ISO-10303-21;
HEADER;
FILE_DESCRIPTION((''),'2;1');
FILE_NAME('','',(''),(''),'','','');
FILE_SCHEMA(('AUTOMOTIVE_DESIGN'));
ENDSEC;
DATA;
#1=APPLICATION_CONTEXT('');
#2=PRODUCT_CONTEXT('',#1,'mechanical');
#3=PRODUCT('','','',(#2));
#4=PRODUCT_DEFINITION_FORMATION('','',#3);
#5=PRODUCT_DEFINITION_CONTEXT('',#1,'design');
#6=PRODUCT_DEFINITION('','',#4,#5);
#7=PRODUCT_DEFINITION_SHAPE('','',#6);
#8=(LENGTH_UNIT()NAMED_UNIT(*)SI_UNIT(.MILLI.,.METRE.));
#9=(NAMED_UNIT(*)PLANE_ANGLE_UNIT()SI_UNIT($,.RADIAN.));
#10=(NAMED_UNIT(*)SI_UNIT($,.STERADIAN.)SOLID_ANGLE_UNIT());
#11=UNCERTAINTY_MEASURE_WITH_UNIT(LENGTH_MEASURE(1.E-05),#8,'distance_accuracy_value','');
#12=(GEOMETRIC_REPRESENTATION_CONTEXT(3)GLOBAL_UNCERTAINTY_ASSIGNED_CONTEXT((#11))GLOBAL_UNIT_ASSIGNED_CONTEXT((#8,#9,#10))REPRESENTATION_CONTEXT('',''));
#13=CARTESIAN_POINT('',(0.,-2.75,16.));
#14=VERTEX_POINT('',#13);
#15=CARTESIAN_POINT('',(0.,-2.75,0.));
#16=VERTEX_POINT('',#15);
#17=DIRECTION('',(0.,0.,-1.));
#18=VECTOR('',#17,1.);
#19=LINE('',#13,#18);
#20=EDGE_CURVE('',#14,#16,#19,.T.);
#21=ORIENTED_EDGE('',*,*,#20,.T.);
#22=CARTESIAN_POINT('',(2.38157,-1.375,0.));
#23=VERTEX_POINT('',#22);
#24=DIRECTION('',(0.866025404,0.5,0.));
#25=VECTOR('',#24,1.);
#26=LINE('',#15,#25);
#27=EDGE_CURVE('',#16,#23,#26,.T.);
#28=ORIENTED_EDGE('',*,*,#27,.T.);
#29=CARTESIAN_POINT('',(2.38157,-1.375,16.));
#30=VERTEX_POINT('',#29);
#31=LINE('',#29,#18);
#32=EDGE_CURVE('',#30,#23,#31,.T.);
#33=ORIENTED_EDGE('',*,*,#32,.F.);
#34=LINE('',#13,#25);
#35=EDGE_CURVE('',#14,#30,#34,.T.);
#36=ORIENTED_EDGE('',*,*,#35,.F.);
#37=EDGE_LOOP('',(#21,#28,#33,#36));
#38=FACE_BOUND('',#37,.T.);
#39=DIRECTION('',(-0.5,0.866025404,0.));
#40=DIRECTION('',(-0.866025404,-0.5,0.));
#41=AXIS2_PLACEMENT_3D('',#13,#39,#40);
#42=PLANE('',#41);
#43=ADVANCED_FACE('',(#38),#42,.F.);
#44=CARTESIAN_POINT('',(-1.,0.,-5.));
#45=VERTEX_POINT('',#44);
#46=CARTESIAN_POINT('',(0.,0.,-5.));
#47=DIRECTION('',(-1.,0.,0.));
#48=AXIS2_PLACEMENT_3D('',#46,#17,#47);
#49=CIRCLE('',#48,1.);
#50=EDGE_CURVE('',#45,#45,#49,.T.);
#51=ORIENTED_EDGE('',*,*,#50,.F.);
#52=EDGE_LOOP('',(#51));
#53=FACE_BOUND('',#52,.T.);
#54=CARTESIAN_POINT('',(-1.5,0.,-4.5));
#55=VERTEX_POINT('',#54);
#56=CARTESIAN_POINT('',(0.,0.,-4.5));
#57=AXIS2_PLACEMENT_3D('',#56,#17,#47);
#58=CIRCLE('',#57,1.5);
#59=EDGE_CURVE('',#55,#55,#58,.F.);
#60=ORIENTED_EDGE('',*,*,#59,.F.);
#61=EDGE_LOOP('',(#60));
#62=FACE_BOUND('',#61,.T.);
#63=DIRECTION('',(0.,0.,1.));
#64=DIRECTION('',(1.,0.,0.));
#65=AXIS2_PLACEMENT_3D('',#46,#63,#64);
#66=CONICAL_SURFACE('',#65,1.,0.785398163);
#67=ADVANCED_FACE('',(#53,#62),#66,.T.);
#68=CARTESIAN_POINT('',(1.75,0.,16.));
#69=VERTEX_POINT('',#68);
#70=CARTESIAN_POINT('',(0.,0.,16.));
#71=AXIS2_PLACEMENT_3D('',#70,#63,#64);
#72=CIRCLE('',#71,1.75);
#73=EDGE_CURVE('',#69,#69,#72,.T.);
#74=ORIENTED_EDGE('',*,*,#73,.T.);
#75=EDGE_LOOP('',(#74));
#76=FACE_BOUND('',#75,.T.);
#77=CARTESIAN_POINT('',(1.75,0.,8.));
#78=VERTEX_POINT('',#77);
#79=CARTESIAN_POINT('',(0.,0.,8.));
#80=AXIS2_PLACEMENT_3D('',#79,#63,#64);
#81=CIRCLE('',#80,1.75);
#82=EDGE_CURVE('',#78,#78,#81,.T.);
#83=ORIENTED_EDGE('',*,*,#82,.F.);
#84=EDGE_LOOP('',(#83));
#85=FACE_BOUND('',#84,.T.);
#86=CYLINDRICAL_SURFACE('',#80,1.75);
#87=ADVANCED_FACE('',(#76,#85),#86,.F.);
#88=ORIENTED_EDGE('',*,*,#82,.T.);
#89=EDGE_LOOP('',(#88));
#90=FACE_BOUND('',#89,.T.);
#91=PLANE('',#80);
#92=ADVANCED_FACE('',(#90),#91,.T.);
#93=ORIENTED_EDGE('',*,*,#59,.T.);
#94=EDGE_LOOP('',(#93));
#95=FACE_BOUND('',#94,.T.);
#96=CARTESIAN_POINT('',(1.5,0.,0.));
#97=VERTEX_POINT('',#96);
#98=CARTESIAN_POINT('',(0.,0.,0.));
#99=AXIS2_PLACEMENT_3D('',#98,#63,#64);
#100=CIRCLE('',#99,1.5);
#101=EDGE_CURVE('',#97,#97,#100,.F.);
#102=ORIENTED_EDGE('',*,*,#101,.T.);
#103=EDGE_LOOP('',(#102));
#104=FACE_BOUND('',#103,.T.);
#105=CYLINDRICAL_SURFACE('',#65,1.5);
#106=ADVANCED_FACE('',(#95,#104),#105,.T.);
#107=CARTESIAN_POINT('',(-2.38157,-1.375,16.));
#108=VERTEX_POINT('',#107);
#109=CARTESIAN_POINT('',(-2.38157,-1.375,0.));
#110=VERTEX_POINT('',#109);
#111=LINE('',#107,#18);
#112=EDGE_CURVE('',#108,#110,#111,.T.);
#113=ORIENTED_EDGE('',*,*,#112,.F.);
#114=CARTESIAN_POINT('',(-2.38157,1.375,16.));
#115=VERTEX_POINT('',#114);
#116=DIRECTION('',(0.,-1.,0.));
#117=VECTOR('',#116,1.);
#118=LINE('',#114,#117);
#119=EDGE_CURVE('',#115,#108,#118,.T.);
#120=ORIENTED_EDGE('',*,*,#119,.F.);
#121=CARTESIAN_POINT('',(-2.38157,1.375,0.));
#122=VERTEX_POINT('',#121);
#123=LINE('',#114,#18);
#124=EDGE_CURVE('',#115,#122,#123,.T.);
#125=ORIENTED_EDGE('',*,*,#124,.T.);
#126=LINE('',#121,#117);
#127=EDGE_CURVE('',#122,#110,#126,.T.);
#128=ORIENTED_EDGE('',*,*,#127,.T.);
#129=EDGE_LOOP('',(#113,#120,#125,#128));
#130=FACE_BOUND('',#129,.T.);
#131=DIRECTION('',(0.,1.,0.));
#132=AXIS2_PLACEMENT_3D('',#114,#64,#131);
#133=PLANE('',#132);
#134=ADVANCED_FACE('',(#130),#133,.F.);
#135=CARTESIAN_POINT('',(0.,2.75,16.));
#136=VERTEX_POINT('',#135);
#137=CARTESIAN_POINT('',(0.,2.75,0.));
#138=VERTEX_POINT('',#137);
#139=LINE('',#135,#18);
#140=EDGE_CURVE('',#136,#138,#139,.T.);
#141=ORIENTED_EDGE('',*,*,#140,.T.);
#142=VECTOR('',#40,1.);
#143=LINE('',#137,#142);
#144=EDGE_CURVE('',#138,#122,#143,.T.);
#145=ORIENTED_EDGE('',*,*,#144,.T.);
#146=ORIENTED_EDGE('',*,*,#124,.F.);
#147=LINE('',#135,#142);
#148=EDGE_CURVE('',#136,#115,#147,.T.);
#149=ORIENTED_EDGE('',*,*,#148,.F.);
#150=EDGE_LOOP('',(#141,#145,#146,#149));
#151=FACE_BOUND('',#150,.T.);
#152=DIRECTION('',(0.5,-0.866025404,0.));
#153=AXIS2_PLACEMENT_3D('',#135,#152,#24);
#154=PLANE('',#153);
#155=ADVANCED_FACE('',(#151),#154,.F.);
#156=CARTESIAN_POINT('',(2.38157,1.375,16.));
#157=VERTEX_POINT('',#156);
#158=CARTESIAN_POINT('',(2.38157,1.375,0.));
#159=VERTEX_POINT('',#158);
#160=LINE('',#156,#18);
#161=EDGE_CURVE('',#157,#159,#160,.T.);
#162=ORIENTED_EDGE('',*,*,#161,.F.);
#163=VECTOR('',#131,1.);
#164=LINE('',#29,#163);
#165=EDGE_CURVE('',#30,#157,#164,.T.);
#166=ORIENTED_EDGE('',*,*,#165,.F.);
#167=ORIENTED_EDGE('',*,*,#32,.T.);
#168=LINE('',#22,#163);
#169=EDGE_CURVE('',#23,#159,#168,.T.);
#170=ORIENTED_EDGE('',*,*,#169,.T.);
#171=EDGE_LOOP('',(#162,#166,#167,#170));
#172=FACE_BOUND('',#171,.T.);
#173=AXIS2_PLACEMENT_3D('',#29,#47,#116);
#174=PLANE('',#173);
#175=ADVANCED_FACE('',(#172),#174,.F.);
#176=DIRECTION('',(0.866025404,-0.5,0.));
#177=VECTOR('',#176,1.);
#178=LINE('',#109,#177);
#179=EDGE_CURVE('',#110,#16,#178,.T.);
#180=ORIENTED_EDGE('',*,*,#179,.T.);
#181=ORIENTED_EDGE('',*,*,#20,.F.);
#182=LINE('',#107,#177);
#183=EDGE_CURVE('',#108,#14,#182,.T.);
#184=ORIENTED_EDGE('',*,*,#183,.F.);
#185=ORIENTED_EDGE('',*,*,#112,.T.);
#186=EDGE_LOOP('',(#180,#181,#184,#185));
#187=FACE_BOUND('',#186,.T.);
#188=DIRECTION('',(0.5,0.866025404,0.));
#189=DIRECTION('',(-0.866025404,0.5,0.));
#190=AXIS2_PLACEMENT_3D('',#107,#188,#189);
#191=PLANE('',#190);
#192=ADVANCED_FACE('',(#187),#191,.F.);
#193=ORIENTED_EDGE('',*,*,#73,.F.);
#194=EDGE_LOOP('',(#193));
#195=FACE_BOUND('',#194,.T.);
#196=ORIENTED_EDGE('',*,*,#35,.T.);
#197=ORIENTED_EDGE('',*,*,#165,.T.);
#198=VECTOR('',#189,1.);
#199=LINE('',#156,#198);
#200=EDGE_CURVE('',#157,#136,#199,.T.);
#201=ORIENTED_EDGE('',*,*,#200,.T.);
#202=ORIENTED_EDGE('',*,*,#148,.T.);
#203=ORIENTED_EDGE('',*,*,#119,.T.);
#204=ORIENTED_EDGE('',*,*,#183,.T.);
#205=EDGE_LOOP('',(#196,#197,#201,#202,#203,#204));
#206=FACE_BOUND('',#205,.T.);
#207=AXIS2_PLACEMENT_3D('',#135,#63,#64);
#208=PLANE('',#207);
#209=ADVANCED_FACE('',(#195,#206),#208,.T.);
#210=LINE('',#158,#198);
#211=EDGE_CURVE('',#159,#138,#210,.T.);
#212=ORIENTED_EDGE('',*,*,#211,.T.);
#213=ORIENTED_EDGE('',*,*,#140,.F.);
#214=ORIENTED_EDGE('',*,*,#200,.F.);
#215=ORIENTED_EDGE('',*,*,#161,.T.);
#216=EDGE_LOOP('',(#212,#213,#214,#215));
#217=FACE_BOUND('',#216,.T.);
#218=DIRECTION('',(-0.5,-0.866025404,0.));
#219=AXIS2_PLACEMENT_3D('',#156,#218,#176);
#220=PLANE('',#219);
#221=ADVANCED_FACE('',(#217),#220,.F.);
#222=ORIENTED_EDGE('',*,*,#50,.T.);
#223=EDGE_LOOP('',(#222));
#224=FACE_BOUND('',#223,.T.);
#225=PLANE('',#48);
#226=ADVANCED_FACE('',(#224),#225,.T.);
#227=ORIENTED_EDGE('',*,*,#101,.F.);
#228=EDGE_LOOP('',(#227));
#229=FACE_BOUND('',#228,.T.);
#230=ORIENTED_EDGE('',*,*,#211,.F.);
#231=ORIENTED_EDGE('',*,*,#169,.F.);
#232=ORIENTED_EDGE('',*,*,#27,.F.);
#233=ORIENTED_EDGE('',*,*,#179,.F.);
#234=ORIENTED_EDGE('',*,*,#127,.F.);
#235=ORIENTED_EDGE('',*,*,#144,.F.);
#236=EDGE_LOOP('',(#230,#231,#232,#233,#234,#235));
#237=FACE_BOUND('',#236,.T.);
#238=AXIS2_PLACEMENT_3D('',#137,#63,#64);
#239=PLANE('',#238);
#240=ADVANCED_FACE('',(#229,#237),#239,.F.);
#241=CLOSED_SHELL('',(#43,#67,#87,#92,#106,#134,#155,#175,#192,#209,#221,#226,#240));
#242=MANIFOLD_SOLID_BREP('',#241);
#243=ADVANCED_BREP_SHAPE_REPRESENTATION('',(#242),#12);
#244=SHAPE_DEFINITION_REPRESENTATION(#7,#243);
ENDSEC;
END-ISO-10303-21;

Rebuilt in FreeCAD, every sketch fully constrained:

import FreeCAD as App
import Part
import Sketcher

V = App.Vector
Q = App.Units.Quantity


def edges_at(feature, points):
    """Names of the edges that pass closest to the given points."""
    edges = feature.Shape.Edges
    near = lambda p: min(range(len(edges)), key=lambda i: edges[i].distToShape(Part.Vertex(*p))[0])
    return sorted({f"Edge{near(p) + 1}" for p in points})

doc = App.newDocument("Part")
params = doc.addObject("Spreadsheet::Sheet", "Params")
for row, (alias, value) in enumerate([
    ("sketch1_height", "2.75 mm"),
    ("pad1_length", "16 mm"),
    ("sketch2_diameter", "3.5 mm"),
    ("pocket1_length", "8 mm"),
    ("sketch3_diameter", "3 mm"),
    ("pad2_length", "5 mm"),
    ("chamfer_size", "0.5 mm"),
], start=1):
    params.set(f"A{row}", alias)
    params.set(f"B{row}", "=" + value)
    params.setAlias(f"B{row}", alias)

body = doc.addObject("PartDesign::Body", "Body")

sketch1 = body.newObject("Sketcher::SketchObject", "Sketch")
sketch1.AttachmentSupport = (doc.getObject("XY_Plane"), [""])
sketch1.MapMode = "FlatFace"
sketch1.addGeometry(Part.LineSegment(V(0, 2.8, 0), V(-2.4, 1.4, 0)), False)
sketch1.addGeometry(Part.LineSegment(V(-2.4, 1.4, 0), V(-2.4, -1.4, 0)), False)
sketch1.addGeometry(Part.LineSegment(V(-2.4, -1.4, 0), V(0, -2.8, 0)), False)
sketch1.addGeometry(Part.LineSegment(V(0, -2.8, 0), V(2.4, -1.4, 0)), False)
sketch1.addGeometry(Part.LineSegment(V(2.4, -1.4, 0), V(2.4, 1.4, 0)), False)
sketch1.addGeometry(Part.LineSegment(V(2.4, 1.4, 0), V(0, 2.8, 0)), False)
sketch1.addConstraint(Sketcher.Constraint("Coincident", 0, 2, 1, 1))
sketch1.addConstraint(Sketcher.Constraint("Coincident", 1, 2, 2, 1))
sketch1.addConstraint(Sketcher.Constraint("Coincident", 2, 2, 3, 1))
sketch1.addConstraint(Sketcher.Constraint("Coincident", 3, 2, 4, 1))
sketch1.addConstraint(Sketcher.Constraint("Coincident", 4, 2, 5, 1))
sketch1.addConstraint(Sketcher.Constraint("Coincident", 5, 2, 0, 1))
sketch1.addConstraint(Sketcher.Constraint("Vertical", 1))
sketch1.addConstraint(Sketcher.Constraint("Vertical", 4))
sketch1.addConstraint(Sketcher.Constraint("Symmetric", 0, 2, 3, 2, -1, 1))
sketch1.addConstraint(Sketcher.Constraint("Symmetric", 2, 2, 5, 2, -1, 1))
sketch1.addConstraint(Sketcher.Constraint("PointOnObject", 2, 2, -2))
sketch1.addConstraint(Sketcher.Constraint("Parallel", 2, 5))
sketch1.addConstraint(Sketcher.Constraint("Horizontal", 1, 2, 3, 2))
sketch1.addConstraint(Sketcher.Constraint("Angle", 0, Q("-150 deg")))
sketch1.addConstraint(Sketcher.Constraint("DistanceY", 1, 2, 1, 1, 2.75))
sketch1.addConstraint(Sketcher.Constraint("DistanceY", 2, 2, 5, 2, 5.5))
sketch1.setExpression("Constraints[14]", "Params.sketch1_height")
pad1 = body.newObject("PartDesign::Pad", "Pad")
pad1.Profile = sketch1
pad1.setExpression("Length", "Params.pad1_length")

sketch2 = body.newObject("Sketcher::SketchObject", "Sketch001")
sketch2.AttachmentSupport = (doc.getObject("XY_Plane"), [""])
sketch2.MapMode = "FlatFace"
sketch2.AttachmentOffset = App.Placement(V(0, 0, 16), App.Rotation())
sketch2.addGeometry(Part.Circle(V(0, 0, 0), V(0, 0, 1), 1.8), False)
sketch2.addConstraint(Sketcher.Constraint("Coincident", 0, 3, -1, 1))
sketch2.addConstraint(Sketcher.Constraint("Diameter", 0, 3.5))
sketch2.setExpression("Constraints[1]", "Params.sketch2_diameter")
pocket1 = body.newObject("PartDesign::Pocket", "Pocket")
pocket1.Profile = sketch2
pocket1.setExpression("Length", "Params.pocket1_length")

sketch3 = body.newObject("Sketcher::SketchObject", "Sketch002")
sketch3.AttachmentSupport = (doc.getObject("XY_Plane"), [""])
sketch3.MapMode = "FlatFace"
sketch3.addGeometry(Part.Circle(V(0, 0, 0), V(0, 0, 1), 1.5), False)
sketch3.addConstraint(Sketcher.Constraint("Coincident", 0, 3, -1, 1))
sketch3.addConstraint(Sketcher.Constraint("Diameter", 0, 3.0))
sketch3.setExpression("Constraints[1]", "Params.sketch3_diameter")
pad2 = body.newObject("PartDesign::Pad", "Pad001")
pad2.Profile = sketch3
pad2.setExpression("Length", "Params.pad2_length")
pad2.Reversed = True
doc.recompute()

chamfer = body.newObject("PartDesign::Chamfer", "Chamfer")
chamfer.Base = (pad2, edges_at(pad2, [(-1.5, 0, -5)]))
chamfer.setExpression("Size", "Params.chamfer_size")

doc.recompute()
